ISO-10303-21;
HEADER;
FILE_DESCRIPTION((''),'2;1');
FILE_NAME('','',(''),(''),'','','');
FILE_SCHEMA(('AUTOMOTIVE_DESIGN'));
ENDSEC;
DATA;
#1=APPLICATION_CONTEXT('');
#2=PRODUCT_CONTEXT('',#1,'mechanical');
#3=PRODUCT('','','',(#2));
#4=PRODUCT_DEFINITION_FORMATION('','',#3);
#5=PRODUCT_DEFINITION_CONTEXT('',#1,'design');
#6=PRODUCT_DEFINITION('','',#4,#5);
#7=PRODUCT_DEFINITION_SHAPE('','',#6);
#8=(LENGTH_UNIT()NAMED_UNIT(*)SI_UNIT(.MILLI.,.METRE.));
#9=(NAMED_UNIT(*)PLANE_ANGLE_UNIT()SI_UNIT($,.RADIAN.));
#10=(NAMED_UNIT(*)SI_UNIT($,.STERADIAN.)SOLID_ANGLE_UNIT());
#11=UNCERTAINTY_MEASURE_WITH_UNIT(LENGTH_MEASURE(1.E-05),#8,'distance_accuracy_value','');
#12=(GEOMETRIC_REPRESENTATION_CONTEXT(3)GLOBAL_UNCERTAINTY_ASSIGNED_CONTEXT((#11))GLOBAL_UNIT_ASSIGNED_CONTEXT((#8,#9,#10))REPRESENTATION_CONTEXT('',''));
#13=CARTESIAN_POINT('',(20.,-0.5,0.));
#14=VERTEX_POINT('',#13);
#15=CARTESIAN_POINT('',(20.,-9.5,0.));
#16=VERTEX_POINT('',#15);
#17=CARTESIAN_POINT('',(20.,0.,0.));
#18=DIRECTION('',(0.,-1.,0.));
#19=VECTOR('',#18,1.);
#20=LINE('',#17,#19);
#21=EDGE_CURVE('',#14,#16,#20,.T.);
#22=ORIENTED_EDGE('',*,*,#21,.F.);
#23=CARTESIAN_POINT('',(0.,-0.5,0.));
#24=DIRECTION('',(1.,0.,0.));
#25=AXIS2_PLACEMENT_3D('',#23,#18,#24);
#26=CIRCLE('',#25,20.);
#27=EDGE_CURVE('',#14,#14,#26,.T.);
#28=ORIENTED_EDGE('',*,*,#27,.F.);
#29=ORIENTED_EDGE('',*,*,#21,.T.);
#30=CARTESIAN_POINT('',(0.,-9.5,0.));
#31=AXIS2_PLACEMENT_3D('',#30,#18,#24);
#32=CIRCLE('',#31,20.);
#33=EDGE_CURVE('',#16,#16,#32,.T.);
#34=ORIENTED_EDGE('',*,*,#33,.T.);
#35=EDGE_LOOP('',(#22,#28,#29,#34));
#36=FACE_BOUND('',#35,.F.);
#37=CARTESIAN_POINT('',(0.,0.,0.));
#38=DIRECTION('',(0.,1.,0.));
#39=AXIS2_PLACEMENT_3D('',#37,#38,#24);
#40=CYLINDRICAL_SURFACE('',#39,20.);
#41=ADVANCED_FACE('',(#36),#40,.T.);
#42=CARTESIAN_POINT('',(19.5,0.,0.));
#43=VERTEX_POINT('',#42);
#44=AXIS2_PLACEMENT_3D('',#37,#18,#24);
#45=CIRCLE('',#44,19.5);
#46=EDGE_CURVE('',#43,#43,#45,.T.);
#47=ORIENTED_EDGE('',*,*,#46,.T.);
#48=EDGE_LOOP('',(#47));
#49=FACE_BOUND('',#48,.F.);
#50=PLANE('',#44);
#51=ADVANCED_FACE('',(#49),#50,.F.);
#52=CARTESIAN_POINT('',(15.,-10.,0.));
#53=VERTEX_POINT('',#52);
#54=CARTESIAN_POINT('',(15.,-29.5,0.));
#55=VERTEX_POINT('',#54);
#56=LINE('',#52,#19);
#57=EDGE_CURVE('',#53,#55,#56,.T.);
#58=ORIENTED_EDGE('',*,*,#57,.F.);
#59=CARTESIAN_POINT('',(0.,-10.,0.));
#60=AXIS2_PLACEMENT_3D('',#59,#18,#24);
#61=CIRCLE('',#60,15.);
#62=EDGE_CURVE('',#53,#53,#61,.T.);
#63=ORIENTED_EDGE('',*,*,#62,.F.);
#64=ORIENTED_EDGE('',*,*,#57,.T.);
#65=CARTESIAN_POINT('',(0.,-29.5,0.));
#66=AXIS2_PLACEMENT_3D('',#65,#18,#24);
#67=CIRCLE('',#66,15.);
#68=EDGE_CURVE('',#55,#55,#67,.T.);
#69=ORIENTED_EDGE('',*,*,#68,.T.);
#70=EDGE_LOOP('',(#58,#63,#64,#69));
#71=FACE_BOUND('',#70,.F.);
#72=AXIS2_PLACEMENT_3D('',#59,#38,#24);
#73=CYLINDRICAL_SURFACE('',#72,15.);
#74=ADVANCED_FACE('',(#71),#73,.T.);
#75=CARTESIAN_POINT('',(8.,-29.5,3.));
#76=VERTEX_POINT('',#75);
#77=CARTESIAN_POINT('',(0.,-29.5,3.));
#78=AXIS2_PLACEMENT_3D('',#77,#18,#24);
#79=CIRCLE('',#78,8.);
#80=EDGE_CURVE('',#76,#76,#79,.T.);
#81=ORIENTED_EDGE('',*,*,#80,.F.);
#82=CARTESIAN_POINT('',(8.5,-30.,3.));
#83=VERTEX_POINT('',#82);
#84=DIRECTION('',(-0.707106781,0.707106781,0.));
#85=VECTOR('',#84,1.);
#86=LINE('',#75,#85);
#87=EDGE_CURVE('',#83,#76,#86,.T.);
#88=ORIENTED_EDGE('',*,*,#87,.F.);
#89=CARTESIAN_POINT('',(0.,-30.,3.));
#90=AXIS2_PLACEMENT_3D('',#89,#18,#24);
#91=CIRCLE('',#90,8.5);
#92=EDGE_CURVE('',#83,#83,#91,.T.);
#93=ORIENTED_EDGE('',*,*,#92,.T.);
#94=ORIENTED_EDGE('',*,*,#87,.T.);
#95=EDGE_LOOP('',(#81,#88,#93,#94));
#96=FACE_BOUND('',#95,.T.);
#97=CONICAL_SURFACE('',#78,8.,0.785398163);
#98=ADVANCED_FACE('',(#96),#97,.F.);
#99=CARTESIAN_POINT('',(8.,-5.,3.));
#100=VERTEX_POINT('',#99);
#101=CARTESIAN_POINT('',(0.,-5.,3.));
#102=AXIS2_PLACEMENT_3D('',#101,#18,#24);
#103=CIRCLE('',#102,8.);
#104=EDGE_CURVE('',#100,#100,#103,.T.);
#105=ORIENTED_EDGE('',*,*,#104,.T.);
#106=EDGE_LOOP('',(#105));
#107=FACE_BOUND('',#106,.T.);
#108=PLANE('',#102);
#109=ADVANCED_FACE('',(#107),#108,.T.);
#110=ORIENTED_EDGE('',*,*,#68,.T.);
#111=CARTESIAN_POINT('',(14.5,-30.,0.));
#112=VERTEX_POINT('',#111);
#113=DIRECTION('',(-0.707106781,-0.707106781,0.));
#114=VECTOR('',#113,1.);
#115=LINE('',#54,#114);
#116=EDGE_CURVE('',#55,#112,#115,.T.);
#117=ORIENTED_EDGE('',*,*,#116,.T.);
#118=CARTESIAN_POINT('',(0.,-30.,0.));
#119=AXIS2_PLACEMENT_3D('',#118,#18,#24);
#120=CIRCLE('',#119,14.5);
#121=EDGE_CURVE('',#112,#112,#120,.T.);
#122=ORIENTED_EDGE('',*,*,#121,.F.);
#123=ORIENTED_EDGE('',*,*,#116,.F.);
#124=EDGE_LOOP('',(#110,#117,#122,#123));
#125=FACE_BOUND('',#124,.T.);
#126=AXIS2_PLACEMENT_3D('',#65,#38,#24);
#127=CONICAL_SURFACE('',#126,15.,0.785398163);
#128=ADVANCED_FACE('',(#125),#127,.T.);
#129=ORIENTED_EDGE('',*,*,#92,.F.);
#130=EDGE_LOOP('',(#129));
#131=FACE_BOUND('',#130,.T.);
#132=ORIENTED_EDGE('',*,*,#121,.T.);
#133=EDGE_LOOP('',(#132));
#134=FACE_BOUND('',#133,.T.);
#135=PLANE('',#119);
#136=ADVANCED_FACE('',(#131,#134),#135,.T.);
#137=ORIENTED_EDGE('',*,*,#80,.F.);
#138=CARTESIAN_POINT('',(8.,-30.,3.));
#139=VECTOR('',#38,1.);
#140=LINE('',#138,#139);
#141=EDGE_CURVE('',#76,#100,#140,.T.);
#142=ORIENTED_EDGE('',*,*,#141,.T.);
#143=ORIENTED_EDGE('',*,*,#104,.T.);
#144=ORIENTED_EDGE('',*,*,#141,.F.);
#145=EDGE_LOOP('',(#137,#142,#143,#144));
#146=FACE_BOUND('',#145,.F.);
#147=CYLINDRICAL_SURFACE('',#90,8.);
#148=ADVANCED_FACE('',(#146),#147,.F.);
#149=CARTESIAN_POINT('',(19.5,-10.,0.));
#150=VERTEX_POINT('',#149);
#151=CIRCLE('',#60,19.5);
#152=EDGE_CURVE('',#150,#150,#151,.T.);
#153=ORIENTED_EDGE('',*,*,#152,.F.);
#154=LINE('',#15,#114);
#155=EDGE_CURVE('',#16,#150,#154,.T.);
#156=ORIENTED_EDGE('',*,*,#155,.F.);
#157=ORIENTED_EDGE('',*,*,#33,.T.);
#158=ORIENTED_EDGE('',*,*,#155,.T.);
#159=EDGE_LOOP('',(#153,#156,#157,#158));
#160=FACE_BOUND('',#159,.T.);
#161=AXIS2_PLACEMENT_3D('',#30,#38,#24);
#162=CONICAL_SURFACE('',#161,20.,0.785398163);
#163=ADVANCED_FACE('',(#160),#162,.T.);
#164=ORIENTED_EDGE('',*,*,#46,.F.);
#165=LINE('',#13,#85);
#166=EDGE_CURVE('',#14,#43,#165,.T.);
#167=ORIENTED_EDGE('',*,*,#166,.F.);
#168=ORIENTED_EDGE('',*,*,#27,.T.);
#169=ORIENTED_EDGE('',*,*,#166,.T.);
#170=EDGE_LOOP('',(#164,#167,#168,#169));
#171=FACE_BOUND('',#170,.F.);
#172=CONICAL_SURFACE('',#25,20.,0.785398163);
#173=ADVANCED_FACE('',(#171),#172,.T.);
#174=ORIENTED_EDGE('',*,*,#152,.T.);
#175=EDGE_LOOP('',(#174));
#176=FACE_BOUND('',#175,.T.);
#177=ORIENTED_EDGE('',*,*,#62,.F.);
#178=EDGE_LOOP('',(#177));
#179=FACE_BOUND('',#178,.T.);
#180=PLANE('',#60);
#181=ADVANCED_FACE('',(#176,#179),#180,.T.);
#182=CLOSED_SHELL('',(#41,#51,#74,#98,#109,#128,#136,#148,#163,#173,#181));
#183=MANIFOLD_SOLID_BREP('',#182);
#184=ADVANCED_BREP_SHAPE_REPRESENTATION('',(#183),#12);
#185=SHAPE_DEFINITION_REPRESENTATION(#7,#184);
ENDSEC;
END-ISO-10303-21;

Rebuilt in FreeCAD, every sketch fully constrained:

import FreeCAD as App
import Part
import Sketcher
from FreeCAD import Vector


def edges_at(feature, points):
    """Names of the edges that pass closest to the given points."""
    edges = feature.Shape.Edges
    near = lambda p: min(range(len(edges)), key=lambda i: edges[i].distToShape(Part.Vertex(*p))[0])
    return sorted({f"Edge{near(p) + 1}" for p in points})

doc = App.newDocument("Part")
body = doc.addObject("PartDesign::Body", "Body")

sketch1 = body.newObject("Sketcher::SketchObject", "Sketch")
sketch1.AttachmentSupport = (doc.getObject("XZ_Plane"), [""])
sketch1.MapMode = "FlatFace"
sketch1.addGeometry(Part.Circle(Vector(0, 0, 0), Vector(0, 0, 1), 20), False)
sketch1.addConstraint([
    Sketcher.Constraint("Coincident", 0, 3, -1, 1),
    Sketcher.Constraint("Diameter", 0, 40.0),
])
pad1 = body.newObject("PartDesign::Pad", "Pad")
pad1.Profile = sketch1
pad1.Length = 10

sketch2 = body.newObject("Sketcher::SketchObject", "Sketch001")
sketch2.AttachmentSupport = (doc.getObject("XZ_Plane"), [""])
sketch2.MapMode = "FlatFace"
sketch2.AttachmentOffset = App.Placement(Vector(0, 0, 10), App.Rotation())
sketch2.addGeometry(Part.Circle(Vector(0, 0, 0), Vector(0, 0, 1), 15), False)
sketch2.addConstraint([
    Sketcher.Constraint("Coincident", 0, 3, -1, 1),
    Sketcher.Constraint("Diameter", 0, 30.0),
])
pad2 = body.newObject("PartDesign::Pad", "Pad001")
pad2.Profile = sketch2
pad2.Length = 20

sketch3 = body.newObject("Sketcher::SketchObject", "Sketch002")
sketch3.AttachmentSupport = (doc.getObject("XZ_Plane"), [""])
sketch3.MapMode = "FlatFace"
sketch3.AttachmentOffset = App.Placement(Vector(0, 0, 30), App.Rotation())
sketch3.addGeometry(Part.Circle(Vector(0, 3, 0), Vector(0, 0, 1), 8), False)
sketch3.addConstraint([
    Sketcher.Constraint("PointOnObject", 0, 3, -2),
    Sketcher.Constraint("Diameter", 0, 16.0),
    Sketcher.Constraint("DistanceY", -1, 1, 0, 3, 3.0),
])
pocket1 = body.newObject("PartDesign::Pocket", "Pocket")
pocket1.Profile = sketch3
pocket1.Length = 25
doc.recompute()

chamfer = body.newObject("PartDesign::Chamfer", "Chamfer")
chamfer.Base = (pocket1, edges_at(pocket1, [
    (-15, -30, 0),
    (-20, -10, 0),
    (-20, 0, 0),
    (-8, -30, 3),
]))
chamfer.Size = 0.5

doc.recompute()
